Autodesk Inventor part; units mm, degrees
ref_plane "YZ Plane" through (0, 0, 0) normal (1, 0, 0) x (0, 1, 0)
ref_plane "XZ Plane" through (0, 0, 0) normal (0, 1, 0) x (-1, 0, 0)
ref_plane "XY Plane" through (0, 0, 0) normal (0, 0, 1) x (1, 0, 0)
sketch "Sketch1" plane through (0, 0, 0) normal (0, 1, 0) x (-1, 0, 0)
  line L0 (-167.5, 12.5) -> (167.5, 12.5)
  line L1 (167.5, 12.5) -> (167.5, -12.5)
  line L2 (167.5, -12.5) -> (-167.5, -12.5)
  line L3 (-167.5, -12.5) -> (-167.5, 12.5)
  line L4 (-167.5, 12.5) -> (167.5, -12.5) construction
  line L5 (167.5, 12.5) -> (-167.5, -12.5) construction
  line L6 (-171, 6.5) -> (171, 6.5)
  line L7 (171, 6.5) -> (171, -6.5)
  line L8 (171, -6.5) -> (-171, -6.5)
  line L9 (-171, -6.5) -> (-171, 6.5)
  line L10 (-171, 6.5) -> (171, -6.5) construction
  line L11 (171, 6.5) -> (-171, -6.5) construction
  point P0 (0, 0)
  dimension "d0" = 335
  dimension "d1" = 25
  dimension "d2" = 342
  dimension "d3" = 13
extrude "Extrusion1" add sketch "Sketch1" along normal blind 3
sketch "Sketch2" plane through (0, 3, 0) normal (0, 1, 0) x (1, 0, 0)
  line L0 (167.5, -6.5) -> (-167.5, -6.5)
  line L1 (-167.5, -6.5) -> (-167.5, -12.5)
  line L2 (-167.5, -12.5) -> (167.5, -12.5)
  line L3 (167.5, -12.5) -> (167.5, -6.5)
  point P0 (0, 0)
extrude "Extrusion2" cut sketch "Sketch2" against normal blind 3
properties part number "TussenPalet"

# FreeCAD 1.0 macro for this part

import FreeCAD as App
import Part
import Sketcher
from FreeCAD import Vector
Q = App.Units.Quantity

doc = App.newDocument("Part")
body = doc.addObject("PartDesign::Body", "Body")

sketch1 = body.newObject("Sketcher::SketchObject", "Sketch")
sketch1.AttachmentSupport = (doc.getObject("XZ_Plane"), [""])
sketch1.MapMode = "FlatFace"
sketch1.addGeometry([
    Part.LineSegment(Vector(-167.5, 12.5, 0), Vector(167.5, 12.5, 0)),
    Part.LineSegment(Vector(167.5, 12.5, 0), Vector(167.5, 6.5, 0)),
    Part.LineSegment(Vector(167.5, 6.5, 0), Vector(171, 6.5, 0)),
    Part.LineSegment(Vector(171, 6.5, 0), Vector(171, -6.5, 0)),
    Part.LineSegment(Vector(171, -6.5, 0), Vector(167.5, -6.5, 0)),
    Part.LineSegment(Vector(167.5, -6.5, 0), Vector(167.5, -12.5, 0)),
    Part.LineSegment(Vector(167.5, -12.5, 0), Vector(-167.5, -12.5, 0)),
    Part.LineSegment(Vector(-167.5, -12.5, 0), Vector(-167.5, -6.5, 0)),
    Part.LineSegment(Vector(-167.5, -6.5, 0), Vector(-171, -6.5, 0)),
    Part.LineSegment(Vector(-171, -6.5, 0), Vector(-171, 6.5, 0)),
    Part.LineSegment(Vector(-171, 6.5, 0), Vector(-167.5, 6.5, 0)),
    Part.LineSegment(Vector(-167.5, 6.5, 0), Vector(-167.5, 12.5, 0)),
], False)
sketch1.addConstraint([
    Sketcher.Constraint("Coincident", 0, 2, 1, 1),
    Sketcher.Constraint("Coincident", 1, 2, 2, 1),
    Sketcher.Constraint("Coincident", 2, 2, 3, 1),
    Sketcher.Constraint("Coincident", 3, 2, 4, 1),
    Sketcher.Constraint("Coincident", 4, 2, 5, 1),
    Sketcher.Constraint("Coincident", 5, 2, 6, 1),
    Sketcher.Constraint("Coincident", 6, 2, 7, 1),
    Sketcher.Constraint("Coincident", 7, 2, 8, 1),
    Sketcher.Constraint("Coincident", 8, 2, 9, 1),
    Sketcher.Constraint("Coincident", 9, 2, 10, 1),
    Sketcher.Constraint("Coincident", 10, 2, 11, 1),
    Sketcher.Constraint("Coincident", 11, 2, 0, 1),
    Sketcher.Constraint("Horizontal", 0),
    Sketcher.Constraint("Vertical", 1),
    Sketcher.Constraint("Horizontal", 2),
    Sketcher.Constraint("Vertical", 3),
    Sketcher.Constraint("Horizontal", 4),
    Sketcher.Constraint("Vertical", 5),
    Sketcher.Constraint("Horizontal", 6),
    Sketcher.Constraint("Vertical", 7),
    Sketcher.Constraint("Horizontal", 8),
    Sketcher.Constraint("Vertical", 9),
    Sketcher.Constraint("Horizontal", 10),
    Sketcher.Constraint("Vertical", 11),
    Sketcher.Constraint("Symmetric", 0, 2, 6, 2, -1, 1),
    Sketcher.Constraint("Symmetric", 2, 2, 8, 2, -1, 1),
    Sketcher.Constraint("Symmetric", 4, 2, 10, 2, -1, 1),
    Sketcher.Constraint("Symmetric", 4, 2, 7, 2, -2),
    Sketcher.Constraint("DistanceX", 0, 1, 0, 2, Q("335 mm")),
    Sketcher.Constraint("DistanceY", 3, 2, 3, 1, Q("13 mm")),
    Sketcher.Constraint("DistanceY", 5, 2, 0, 2, Q("25 mm")),
    Sketcher.Constraint("DistanceX", 2, 1, 2, 2, Q("3.5 mm")),
])
pad1 = body.newObject("PartDesign::Pad", "Pad")
pad1.Profile = sketch1
pad1.Length = 3
pad1.Reversed = True

sketch2 = body.newObject("Sketcher::SketchObject", "Sketch001")
sketch2.AttachmentSupport = (doc.getObject("XZ_Plane"), [""])
sketch2.MapMode = "FlatFace"
sketch2.AttachmentOffset = App.Placement(Vector(0, 0, -3), App.Rotation())
sketch2.addGeometry([
    Part.LineSegment(Vector(168, 12, 0), Vector(168, 6, 0)),
    Part.LineSegment(Vector(168, 6, 0), Vector(-168, 6, 0)),
    Part.LineSegment(Vector(-168, 6, 0), Vector(-168, 12, 0)),
    Part.LineSegment(Vector(-168, 12, 0), Vector(168, 12, 0)),
], False)
sketch2.addConstraint([
    Sketcher.Constraint("Coincident", 0, 2, 1, 1),
    Sketcher.Constraint("Coincident", 1, 2, 2, 1),
    Sketcher.Constraint("Coincident", 2, 2, 3, 1),
    Sketcher.Constraint("Coincident", 3, 2, 0, 1),
    Sketcher.Constraint("Vertical", 0),
    Sketcher.Constraint("Horizontal", 1),
    Sketcher.Constraint("Vertical", 2),
    Sketcher.Constraint("Horizontal", 3),
    Sketcher.Constraint("DistanceX", 1, 2, 1, 1, Q("335 mm")),
    Sketcher.Constraint("DistanceY", 0, 2, 0, 1, Q("6 mm")),
    Sketcher.Constraint("DistanceX", -1, 1, 0, 2, Q("167.5 mm")),
    Sketcher.Constraint("DistanceY", -1, 1, 0, 2, Q("6.5 mm")),
])
pocket1 = body.newObject("PartDesign::Pocket", "Pocket")
pocket1.Profile = sketch2
pocket1.Length = 3
pocket1.Reversed = True

doc.recompute()
